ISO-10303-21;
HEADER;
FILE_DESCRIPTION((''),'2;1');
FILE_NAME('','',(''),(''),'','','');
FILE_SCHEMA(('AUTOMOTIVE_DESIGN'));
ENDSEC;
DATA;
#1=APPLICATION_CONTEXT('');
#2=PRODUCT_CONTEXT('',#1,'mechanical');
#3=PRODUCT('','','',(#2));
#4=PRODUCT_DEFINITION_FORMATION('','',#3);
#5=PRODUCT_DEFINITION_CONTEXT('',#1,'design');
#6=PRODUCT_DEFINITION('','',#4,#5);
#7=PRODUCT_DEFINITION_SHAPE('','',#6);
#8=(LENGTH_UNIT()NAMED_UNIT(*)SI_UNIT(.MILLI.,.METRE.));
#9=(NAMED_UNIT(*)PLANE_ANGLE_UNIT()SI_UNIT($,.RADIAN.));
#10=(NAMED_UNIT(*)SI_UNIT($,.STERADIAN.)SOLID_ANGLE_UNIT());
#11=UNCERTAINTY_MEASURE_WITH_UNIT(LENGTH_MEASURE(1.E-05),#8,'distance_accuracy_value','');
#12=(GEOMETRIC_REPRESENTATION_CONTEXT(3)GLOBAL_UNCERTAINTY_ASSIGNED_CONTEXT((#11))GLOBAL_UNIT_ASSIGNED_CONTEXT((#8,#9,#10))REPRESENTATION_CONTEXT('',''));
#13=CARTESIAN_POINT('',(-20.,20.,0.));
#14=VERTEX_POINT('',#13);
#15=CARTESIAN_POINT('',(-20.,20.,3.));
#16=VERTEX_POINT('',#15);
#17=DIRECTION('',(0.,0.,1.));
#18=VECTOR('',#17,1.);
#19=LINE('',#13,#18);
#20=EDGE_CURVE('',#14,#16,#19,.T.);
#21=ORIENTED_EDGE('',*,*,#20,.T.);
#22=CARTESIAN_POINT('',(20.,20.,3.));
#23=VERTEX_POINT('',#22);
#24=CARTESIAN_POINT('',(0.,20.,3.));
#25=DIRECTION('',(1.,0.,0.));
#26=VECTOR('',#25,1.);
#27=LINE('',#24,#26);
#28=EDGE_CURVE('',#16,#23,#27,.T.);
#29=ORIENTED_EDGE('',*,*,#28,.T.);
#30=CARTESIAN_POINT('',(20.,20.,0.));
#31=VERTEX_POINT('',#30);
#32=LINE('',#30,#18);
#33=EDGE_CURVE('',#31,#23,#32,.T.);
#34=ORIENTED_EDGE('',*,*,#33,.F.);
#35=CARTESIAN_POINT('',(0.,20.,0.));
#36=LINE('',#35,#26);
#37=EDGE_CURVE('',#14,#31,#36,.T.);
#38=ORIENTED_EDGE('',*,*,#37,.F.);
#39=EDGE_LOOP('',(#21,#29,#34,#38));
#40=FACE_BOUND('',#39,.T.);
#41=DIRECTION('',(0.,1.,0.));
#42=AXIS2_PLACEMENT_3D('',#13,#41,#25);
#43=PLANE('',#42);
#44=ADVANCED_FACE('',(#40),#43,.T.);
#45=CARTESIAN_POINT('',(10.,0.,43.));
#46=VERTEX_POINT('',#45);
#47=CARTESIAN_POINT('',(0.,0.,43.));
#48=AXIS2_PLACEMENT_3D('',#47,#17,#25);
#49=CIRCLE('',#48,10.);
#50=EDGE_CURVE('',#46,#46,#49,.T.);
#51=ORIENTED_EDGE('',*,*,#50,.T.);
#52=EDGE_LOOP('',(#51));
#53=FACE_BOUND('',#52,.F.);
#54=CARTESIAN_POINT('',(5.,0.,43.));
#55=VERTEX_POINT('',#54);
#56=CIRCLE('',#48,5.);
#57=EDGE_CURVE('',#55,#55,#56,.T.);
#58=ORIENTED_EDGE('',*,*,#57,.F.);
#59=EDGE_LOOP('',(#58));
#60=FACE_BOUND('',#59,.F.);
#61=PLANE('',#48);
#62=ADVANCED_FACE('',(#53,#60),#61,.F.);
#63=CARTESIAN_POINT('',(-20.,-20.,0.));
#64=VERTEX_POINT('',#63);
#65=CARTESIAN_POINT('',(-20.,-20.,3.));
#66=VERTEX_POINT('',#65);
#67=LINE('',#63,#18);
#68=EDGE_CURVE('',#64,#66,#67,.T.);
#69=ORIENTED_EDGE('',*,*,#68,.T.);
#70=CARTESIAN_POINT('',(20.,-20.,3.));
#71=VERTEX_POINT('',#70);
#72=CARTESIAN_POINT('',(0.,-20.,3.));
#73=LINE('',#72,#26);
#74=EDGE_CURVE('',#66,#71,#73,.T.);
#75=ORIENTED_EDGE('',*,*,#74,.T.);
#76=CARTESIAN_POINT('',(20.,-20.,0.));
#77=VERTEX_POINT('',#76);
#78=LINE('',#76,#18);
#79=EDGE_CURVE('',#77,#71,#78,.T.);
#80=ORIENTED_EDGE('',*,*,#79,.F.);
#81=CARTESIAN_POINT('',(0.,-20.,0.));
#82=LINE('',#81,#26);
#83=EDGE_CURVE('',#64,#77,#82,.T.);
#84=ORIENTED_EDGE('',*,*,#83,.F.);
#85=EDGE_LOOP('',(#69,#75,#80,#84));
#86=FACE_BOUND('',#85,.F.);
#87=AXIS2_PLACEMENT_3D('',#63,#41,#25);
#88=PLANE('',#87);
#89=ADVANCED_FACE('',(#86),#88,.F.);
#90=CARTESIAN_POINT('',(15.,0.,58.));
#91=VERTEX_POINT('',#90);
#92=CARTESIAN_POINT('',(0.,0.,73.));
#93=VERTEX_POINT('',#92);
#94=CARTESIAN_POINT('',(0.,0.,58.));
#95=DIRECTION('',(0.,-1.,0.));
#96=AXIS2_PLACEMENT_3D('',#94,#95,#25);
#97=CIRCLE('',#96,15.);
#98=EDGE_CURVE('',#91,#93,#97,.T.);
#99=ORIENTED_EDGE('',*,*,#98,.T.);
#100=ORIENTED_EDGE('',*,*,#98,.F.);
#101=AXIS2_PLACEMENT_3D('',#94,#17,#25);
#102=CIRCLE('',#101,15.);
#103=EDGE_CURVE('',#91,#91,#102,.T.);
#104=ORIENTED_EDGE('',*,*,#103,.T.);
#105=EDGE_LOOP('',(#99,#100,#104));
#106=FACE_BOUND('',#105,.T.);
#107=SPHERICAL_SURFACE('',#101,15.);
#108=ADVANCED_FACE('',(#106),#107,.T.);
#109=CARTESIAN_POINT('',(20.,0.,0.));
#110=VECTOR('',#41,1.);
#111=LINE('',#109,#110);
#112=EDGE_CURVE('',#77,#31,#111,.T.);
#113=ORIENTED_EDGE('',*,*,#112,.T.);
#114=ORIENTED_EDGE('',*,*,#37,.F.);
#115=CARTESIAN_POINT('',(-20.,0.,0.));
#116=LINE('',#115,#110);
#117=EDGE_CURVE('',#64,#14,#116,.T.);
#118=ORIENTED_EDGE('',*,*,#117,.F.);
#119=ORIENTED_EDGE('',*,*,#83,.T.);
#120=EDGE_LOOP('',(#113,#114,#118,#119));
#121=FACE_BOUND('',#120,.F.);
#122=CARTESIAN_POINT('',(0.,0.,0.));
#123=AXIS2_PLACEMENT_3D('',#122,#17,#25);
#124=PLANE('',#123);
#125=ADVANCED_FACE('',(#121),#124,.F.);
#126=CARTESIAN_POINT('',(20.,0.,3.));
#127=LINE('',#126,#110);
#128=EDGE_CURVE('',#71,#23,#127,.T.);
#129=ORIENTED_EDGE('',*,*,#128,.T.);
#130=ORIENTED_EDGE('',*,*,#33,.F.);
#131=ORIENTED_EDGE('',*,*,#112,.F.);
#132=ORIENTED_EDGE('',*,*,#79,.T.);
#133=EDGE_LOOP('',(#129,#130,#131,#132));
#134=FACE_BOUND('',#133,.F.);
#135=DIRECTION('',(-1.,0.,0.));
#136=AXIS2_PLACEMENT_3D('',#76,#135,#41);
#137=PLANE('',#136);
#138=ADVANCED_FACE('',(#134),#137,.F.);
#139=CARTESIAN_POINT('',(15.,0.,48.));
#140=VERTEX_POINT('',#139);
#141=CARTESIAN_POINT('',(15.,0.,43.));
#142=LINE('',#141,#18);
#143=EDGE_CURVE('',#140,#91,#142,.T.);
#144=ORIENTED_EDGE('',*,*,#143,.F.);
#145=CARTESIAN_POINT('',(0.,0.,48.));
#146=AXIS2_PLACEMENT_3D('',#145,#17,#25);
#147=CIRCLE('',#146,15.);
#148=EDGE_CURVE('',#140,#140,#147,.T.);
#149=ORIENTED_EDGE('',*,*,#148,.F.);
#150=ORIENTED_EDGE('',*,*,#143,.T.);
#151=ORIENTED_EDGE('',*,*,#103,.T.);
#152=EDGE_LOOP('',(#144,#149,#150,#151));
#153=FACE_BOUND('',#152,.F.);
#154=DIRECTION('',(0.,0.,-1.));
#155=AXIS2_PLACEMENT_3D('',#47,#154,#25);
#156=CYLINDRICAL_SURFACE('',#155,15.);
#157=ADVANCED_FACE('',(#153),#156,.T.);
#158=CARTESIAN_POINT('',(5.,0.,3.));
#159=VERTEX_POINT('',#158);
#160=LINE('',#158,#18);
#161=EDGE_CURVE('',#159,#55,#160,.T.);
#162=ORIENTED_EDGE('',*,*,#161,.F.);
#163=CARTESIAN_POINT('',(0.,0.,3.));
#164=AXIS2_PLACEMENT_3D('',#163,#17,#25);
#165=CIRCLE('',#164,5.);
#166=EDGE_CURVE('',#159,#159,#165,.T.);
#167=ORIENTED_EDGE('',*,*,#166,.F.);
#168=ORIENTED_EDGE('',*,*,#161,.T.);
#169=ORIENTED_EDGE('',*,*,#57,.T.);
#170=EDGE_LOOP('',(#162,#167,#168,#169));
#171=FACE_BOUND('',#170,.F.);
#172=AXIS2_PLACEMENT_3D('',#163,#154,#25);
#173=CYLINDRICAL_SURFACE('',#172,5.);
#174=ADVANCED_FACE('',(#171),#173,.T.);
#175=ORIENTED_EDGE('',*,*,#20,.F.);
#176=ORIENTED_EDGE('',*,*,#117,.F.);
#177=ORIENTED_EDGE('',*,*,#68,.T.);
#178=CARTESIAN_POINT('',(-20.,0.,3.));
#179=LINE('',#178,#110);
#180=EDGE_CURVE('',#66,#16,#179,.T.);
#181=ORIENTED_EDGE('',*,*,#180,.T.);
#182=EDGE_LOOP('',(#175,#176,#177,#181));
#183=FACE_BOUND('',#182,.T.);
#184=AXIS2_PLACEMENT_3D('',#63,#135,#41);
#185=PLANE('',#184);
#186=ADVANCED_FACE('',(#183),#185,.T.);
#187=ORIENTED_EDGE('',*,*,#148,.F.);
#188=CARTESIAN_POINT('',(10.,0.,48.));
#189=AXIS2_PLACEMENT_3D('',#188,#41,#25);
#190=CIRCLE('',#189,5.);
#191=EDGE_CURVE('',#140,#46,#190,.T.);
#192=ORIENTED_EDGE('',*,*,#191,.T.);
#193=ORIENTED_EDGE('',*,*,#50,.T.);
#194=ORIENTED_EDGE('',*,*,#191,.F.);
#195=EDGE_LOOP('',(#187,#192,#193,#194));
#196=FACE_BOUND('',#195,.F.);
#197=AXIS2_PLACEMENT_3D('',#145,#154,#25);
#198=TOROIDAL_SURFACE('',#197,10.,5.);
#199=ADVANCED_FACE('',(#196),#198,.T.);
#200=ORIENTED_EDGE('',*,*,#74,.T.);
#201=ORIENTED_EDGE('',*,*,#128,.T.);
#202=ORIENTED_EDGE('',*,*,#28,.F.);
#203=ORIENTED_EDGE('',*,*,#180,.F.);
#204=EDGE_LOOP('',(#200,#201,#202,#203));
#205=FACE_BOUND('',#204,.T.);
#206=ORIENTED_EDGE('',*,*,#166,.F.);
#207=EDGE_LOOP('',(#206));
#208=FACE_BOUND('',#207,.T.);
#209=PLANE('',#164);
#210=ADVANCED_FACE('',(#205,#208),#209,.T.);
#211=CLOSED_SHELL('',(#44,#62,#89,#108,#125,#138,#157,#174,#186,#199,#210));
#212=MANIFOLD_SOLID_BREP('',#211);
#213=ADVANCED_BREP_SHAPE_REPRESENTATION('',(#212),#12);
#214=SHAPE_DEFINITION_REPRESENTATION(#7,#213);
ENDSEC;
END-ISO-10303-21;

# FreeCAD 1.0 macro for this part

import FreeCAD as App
import Part
import Sketcher

V = App.Vector
Q = App.Units.Quantity


def edges_at(feature, points):
    """Names of the edges that pass closest to the given points."""
    edges = feature.Shape.Edges
    near = lambda p: min(range(len(edges)), key=lambda i: edges[i].distToShape(Part.Vertex(*p))[0])
    return sorted({f"Edge{near(p) + 1}" for p in points})

doc = App.newDocument("Part")
body = doc.addObject("PartDesign::Body", "Body")

# Sketch on XY plane
sketch1 = body.newObject("Sketcher::SketchObject", "Sketch")
sketch1.AttachmentSupport = (doc.getObject("XY_Plane"), [""])
sketch1.MapMode = "FlatFace"
sketch1.addGeometry([
    Part.LineSegment(V(-20, 20, 0), V(-20, -20, 0)),
    Part.LineSegment(V(-20, -20, 0), V(20, -20, 0)),
    Part.LineSegment(V(20, -20, 0), V(20, 20, 0)),
    Part.LineSegment(V(20, 20, 0), V(-20, 20, 0)),
], False)
sketch1.addConstraint([
    Sketcher.Constraint("Coincident", 0, 2, 1, 1),
    Sketcher.Constraint("Coincident", 1, 2, 2, 1),
    Sketcher.Constraint("Coincident", 2, 2, 3, 1),
    Sketcher.Constraint("Coincident", 3, 2, 0, 1),
    Sketcher.Constraint("Vertical", 0),
    Sketcher.Constraint("Horizontal", 1),
    Sketcher.Constraint("Vertical", 2),
    Sketcher.Constraint("Horizontal", 3),
    Sketcher.Constraint("Symmetric", 0, 2, 2, 2, -1, 1),
    Sketcher.Constraint("Equal", 3, 0),
    Sketcher.Constraint("DistanceX", 1, 1, 1, 2, Q("40 mm")),
])
pad1 = body.newObject("PartDesign::Pad", "Pad")
pad1.Profile = sketch1
pad1.Length = 3

# Sketch on XY plane
sketch2 = body.newObject("Sketcher::SketchObject", "Sketch001")
sketch2.AttachmentSupport = (doc.getObject("XY_Plane"), [""])
sketch2.MapMode = "FlatFace"
sketch2.AttachmentOffset = App.Placement(V(0, 0, 3), App.Rotation())
sketch2.addGeometry(Part.Circle(V(0, 0, 0), V(0, 0, 1), 5), False)
sketch2.addConstraint([
    Sketcher.Constraint("Coincident", 0, 3, -1, 1),
    Sketcher.Constraint("Diameter", 0, Q("10 mm")),
])
pad2 = body.newObject("PartDesign::Pad", "Pad001")
pad2.Profile = sketch2
pad2.Length = 40

# Sketch on XY plane
sketch3 = body.newObject("Sketcher::SketchObject", "Sketch002")
sketch3.AttachmentSupport = (doc.getObject("XY_Plane"), [""])
sketch3.MapMode = "FlatFace"
sketch3.AttachmentOffset = App.Placement(V(0, 0, 43), App.Rotation())
sketch3.addGeometry(Part.Circle(V(0, 0, 0), V(0, 0, 1), 15), False)
sketch3.addConstraint([
    Sketcher.Constraint("Coincident", 0, 3, -1, 1),
    Sketcher.Constraint("Diameter", 0, Q("30 mm")),
])
pad3 = body.newObject("PartDesign::Pad", "Pad002")
pad3.Profile = sketch3
pad3.Length = 30
doc.recompute()

fillet = body.newObject("PartDesign::Fillet", "Fillet")
fillet.Base = (pad3, edges_at(pad3, [(-15, 0, 73)]))
fillet.Radius = 15
doc.recompute()

fillet2 = body.newObject("PartDesign::Fillet", "Fillet001")
fillet2.Base = (fillet, edges_at(fillet, [(-15, 0, 43)]))
fillet2.Radius = 5

doc.recompute()
